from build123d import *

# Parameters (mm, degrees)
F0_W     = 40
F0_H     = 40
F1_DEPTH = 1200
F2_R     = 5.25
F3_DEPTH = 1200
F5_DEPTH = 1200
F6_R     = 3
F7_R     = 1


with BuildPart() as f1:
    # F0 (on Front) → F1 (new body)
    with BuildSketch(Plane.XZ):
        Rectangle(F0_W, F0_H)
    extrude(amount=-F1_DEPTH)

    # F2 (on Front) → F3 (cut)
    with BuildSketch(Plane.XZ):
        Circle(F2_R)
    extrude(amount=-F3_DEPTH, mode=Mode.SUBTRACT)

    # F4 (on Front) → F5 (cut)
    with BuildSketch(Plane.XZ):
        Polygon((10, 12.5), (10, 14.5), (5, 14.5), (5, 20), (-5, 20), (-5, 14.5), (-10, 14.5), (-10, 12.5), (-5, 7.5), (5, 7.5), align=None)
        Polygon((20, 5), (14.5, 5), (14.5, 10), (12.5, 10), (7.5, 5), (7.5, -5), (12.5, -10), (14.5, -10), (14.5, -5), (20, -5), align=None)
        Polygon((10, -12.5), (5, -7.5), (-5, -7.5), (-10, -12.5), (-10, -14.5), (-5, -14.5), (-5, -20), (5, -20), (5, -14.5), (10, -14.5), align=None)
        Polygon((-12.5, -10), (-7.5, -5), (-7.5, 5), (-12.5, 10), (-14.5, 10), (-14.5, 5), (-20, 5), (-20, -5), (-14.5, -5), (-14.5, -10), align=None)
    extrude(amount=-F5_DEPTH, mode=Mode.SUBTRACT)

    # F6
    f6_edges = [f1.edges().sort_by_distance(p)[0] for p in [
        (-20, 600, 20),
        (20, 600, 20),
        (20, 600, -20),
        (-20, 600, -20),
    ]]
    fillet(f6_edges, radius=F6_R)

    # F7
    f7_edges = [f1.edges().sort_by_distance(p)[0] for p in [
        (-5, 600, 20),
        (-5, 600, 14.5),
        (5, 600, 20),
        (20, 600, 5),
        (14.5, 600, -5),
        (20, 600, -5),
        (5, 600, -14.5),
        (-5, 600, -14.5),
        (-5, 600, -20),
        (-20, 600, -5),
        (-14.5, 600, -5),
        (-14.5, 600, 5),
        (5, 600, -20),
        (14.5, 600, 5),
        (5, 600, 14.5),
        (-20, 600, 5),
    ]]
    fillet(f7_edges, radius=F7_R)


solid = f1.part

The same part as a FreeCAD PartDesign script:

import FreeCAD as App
import Part
import Sketcher

V = App.Vector


def edges_at(feature, points):
    """Names of the edges that pass closest to the given points."""
    edges = feature.Shape.Edges
    near = lambda p: min(range(len(edges)), key=lambda i: edges[i].distToShape(Part.Vertex(*p))[0])
    return sorted({f"Edge{near(p) + 1}" for p in points})


def add_polygon(sketch, points):
    """Adds a closed chain of lines whose ends are joined by coincident constraints."""
    first, n = sketch.GeometryCount, len(points)
    for a, b in zip(points, points[1:] + points[:1]):
        sketch.addGeometry(Part.LineSegment(App.Vector(*a, 0), App.Vector(*b, 0)), False)
    for i in range(n):
        sketch.addConstraint(Sketcher.Constraint("Coincident", first + i, 2, first + (i + 1) % n, 1))

doc = App.newDocument("Part")
params = doc.addObject("Spreadsheet::Sheet", "Params")
for row, (alias, value) in enumerate([
    ("sketch1_width", "40 mm"),
    ("pad1_length", "1200 mm"),
    ("sketch2_diameter", "10.5 mm"),
    ("pocket1_length", "1200 mm"),
    ("sketch3_width", "5 mm"),
    ("sketch3_width2", "10 mm"),
    ("sketch3_width3", "2 mm"),
    ("sketch3_width4", "5.5 mm"),
    ("pocket2_length", "1200 mm"),
    ("fillet_radius", "3 mm"),
    ("fillet2_radius", "1 mm"),
], start=1):
    params.set(f"A{row}", alias)
    params.set(f"B{row}", "=" + value)
    params.setAlias(f"B{row}", alias)

body = doc.addObject("PartDesign::Body", "Body")

sketch1 = body.newObject("Sketcher::SketchObject", "Sketch")
sketch1.AttachmentSupport = (doc.getObject("XZ_Plane"), [""])
sketch1.MapMode = "FlatFace"
add_polygon(sketch1, [(-20, 20), (-20, -20), (20, -20), (20, 20)])
sketch1.addConstraint([
    Sketcher.Constraint("Vertical", 0),
    Sketcher.Constraint("Horizontal", 1),
    Sketcher.Constraint("Vertical", 2),
    Sketcher.Constraint("Horizontal", 3),
    Sketcher.Constraint("Symmetric", 0, 2, 2, 2, -1, 1),
    Sketcher.Constraint("Equal", 3, 0),
    Sketcher.Constraint("DistanceX", 1, 1, 1, 2, 40.0),
])
sketch1.setExpression("Constraints[10]", "Params.sketch1_width")
pad1 = body.newObject("PartDesign::Pad", "Pad")
pad1.Profile = sketch1
pad1.setExpression("Length", "Params.pad1_length")
pad1.Reversed = True

sketch2 = body.newObject("Sketcher::SketchObject", "Sketch001")
sketch2.AttachmentSupport = (doc.getObject("XZ_Plane"), [""])
sketch2.MapMode = "FlatFace"
sketch2.addGeometry(Part.Circle(V(0, 0, 0), V(0, 0, 1), 5), False)
sketch2.addConstraint([
    Sketcher.Constraint("Coincident", 0, 3, -1, 1),
    Sketcher.Constraint("Diameter", 0, 10.5),
])
sketch2.setExpression("Constraints[1]", "Params.sketch2_diameter")
pocket1 = body.newObject("PartDesign::Pocket", "Pocket")
pocket1.Profile = sketch2
pocket1.setExpression("Length", "Params.pocket1_length")

sketch3 = body.newObject("Sketcher::SketchObject", "Sketch002")
sketch3.AttachmentSupport = (doc.getObject("XZ_Plane"), [""])
sketch3.MapMode = "FlatFace"
add_polygon(sketch3, [(10, 12.5), (10, 14.5), (5, 14.5), (5, 20), (-5, 20), (-5, 14.5), (-10, 14.5), (-10, 12.5), (-5, 7.5), (5, 7.5)])
add_polygon(sketch3, [(20, 5), (14.5, 5), (14.5, 10), (12.5, 10), (7.5, 5), (7.5, -5), (12.5, -10), (14.5, -10), (14.5, -5), (20, -5)])
add_polygon(sketch3, [(10, -12.5), (5, -7.5), (-5, -7.5), (-10, -12.5), (-10, -14.5), (-5, -14.5), (-5, -20), (5, -20), (5, -14.5), (10, -14.5)])
add_polygon(sketch3, [(-12.5, -10), (-7.5, -5), (-7.5, 5), (-12.5, 10), (-14.5, 10), (-14.5, 5), (-20, 5), (-20, -5), (-14.5, -5), (-14.5, -10)])
sketch3.addConstraint([
    Sketcher.Constraint("Vertical", 0),
    Sketcher.Constraint("Horizontal", 1),
    Sketcher.Constraint("Vertical", 2),
    Sketcher.Constraint("Horizontal", 3),
    Sketcher.Constraint("Vertical", 4),
    Sketcher.Constraint("Horizontal", 5),
    Sketcher.Constraint("Vertical", 6),
    Sketcher.Constraint("Horizontal", 8),
    Sketcher.Constraint("Horizontal", 10),
    Sketcher.Constraint("Vertical", 11),
    Sketcher.Constraint("Horizontal", 12),
    Sketcher.Constraint("Vertical", 14),
    Sketcher.Constraint("Horizontal", 16),
    Sketcher.Constraint("Vertical", 17),
    Sketcher.Constraint("Horizontal", 18),
    Sketcher.Constraint("Vertical", 19),
    Sketcher.Constraint("Horizontal", 21),
    Sketcher.Constraint("Vertical", 23),
    Sketcher.Constraint("Horizontal", 24),
    Sketcher.Constraint("Vertical", 25),
    Sketcher.Constraint("Horizontal", 26),
    Sketcher.Constraint("Vertical", 27),
    Sketcher.Constraint("Horizontal", 28),
    Sketcher.Constraint("Vertical", 29),
    Sketcher.Constraint("Vertical", 31),
    Sketcher.Constraint("Horizontal", 33),
    Sketcher.Constraint("Vertical", 34),
    Sketcher.Constraint("Horizontal", 35),
    Sketcher.Constraint("Vertical", 36),
    Sketcher.Constraint("Horizontal", 37),
    Sketcher.Constraint("Vertical", 38),
    Sketcher.Constraint("Horizontal", 39),
    Sketcher.Constraint("Symmetric", 7, 2, 20, 2, -1, 1),
    Sketcher.Constraint("Symmetric", 9, 2, 22, 2, -1, 1),
    Sketcher.Constraint("Symmetric", 1, 2, 24, 2, -1, 1),
    Sketcher.Constraint("Symmetric", 3, 2, 26, 2, -1, 1),
    Sketcher.Constraint("Symmetric", 5, 2, 28, 2, -1, 1),
    Sketcher.Constraint("Symmetric", 13, 2, 30, 2, -1, 1),
    Sketcher.Constraint("Symmetric", 15, 2, 32, 2, -1, 1),
    Sketcher.Constraint("Symmetric", 17, 2, 34, 2, -1, 1),
    Sketcher.Constraint("Symmetric", 19, 2, 36, 2, -1, 1),
    Sketcher.Constraint("Symmetric", 11, 2, 38, 2, -1, 1),
    Sketcher.Constraint("Symmetric", 1, 2, 4, 2, -2),
    Sketcher.Constraint("Symmetric", 6, 2, 9, 2, -2),
    Sketcher.Constraint("Symmetric", 12, 2, 32, 2, -2),
    Sketcher.Constraint("Symmetric", 10, 2, 34, 2, -2),
    Sketcher.Constraint("Perpendicular", 7, 9),
    Sketcher.Constraint("Parallel", 9, 13),
    Sketcher.Constraint("Perpendicular", 13, 15),
    Sketcher.Constraint("Parallel", 15, 20),
    Sketcher.Constraint("Perpendicular", 20, 22),
    Sketcher.Constraint("Parallel", 22, 30),
    Sketcher.Constraint("Perpendicular", 30, 32),
    Sketcher.Constraint("Horizontal", 10, 2, 13, 2),
    Sketcher.Constraint("Horizontal", 14, 2, 17, 2),
    Sketcher.Constraint("Vertical", 4, 2, 7, 2),
    Sketcher.Constraint("Equal", 39, 0),
    Sketcher.Constraint("Equal", 37, 2),
    Sketcher.Constraint("Equal", 28, 11),
    Sketcher.Constraint("Equal", 26, 14),
    Sketcher.Constraint("DistanceX", 1, 2, 1, 1, 5.0),
    Sketcher.Constraint("DistanceX", 3, 2, 3, 1, 10.0),
    Sketcher.Constraint("DistanceX", 12, 2, 12, 1, 2.0),
    Sketcher.Constraint("DistanceX", 10, 2, 10, 1, 5.5),
    Sketcher.Constraint("DistanceY", -1, 1, 2, 2, 20.0),
    Sketcher.Constraint("DistanceX", -1, 1, 18, 2, 20.0),
])
sketch3.setExpression("Constraints[100]", "Params.sketch3_width")
sketch3.setExpression("Constraints[101]", "Params.sketch3_width2")
sketch3.setExpression("Constraints[102]", "Params.sketch3_width3")
sketch3.setExpression("Constraints[103]", "Params.sketch3_width4")
pocket2 = body.newObject("PartDesign::Pocket", "Pocket001")
pocket2.Profile = sketch3
pocket2.setExpression("Length", "Params.pocket2_length")
doc.recompute()

fillet = body.newObject("PartDesign::Fillet", "Fillet")
fillet.Base = (pocket2, edges_at(pocket2, [
    (-20, 600, 20),
    (20, 600, 20),
    (20, 600, -20),
    (-20, 600, -20),
]))
fillet.setExpression("Radius", "Params.fillet_radius")
doc.recompute()

fillet2 = body.newObject("PartDesign::Fillet", "Fillet001")
fillet2.Base = (fillet, edges_at(fillet, [
    (-5, 600, 20),
    (-5, 600, 14.5),
    (5, 600, 20),
    (20, 600, 5),
    (14.5, 600, -5),
    (20, 600, -5),
    (5, 600, -14.5),
    (-5, 600, -14.5),
    (-5, 600, -20),
    (-20, 600, -5),
    (-14.5, 600, -5),
    (-14.5, 600, 5),
    (5, 600, -20),
    (14.5, 600, 5),
    (5, 600, 14.5),
    (-20, 600, 5),
]))
fillet2.setExpression("Radius", "Params.fillet2_radius")

doc.recompute()
